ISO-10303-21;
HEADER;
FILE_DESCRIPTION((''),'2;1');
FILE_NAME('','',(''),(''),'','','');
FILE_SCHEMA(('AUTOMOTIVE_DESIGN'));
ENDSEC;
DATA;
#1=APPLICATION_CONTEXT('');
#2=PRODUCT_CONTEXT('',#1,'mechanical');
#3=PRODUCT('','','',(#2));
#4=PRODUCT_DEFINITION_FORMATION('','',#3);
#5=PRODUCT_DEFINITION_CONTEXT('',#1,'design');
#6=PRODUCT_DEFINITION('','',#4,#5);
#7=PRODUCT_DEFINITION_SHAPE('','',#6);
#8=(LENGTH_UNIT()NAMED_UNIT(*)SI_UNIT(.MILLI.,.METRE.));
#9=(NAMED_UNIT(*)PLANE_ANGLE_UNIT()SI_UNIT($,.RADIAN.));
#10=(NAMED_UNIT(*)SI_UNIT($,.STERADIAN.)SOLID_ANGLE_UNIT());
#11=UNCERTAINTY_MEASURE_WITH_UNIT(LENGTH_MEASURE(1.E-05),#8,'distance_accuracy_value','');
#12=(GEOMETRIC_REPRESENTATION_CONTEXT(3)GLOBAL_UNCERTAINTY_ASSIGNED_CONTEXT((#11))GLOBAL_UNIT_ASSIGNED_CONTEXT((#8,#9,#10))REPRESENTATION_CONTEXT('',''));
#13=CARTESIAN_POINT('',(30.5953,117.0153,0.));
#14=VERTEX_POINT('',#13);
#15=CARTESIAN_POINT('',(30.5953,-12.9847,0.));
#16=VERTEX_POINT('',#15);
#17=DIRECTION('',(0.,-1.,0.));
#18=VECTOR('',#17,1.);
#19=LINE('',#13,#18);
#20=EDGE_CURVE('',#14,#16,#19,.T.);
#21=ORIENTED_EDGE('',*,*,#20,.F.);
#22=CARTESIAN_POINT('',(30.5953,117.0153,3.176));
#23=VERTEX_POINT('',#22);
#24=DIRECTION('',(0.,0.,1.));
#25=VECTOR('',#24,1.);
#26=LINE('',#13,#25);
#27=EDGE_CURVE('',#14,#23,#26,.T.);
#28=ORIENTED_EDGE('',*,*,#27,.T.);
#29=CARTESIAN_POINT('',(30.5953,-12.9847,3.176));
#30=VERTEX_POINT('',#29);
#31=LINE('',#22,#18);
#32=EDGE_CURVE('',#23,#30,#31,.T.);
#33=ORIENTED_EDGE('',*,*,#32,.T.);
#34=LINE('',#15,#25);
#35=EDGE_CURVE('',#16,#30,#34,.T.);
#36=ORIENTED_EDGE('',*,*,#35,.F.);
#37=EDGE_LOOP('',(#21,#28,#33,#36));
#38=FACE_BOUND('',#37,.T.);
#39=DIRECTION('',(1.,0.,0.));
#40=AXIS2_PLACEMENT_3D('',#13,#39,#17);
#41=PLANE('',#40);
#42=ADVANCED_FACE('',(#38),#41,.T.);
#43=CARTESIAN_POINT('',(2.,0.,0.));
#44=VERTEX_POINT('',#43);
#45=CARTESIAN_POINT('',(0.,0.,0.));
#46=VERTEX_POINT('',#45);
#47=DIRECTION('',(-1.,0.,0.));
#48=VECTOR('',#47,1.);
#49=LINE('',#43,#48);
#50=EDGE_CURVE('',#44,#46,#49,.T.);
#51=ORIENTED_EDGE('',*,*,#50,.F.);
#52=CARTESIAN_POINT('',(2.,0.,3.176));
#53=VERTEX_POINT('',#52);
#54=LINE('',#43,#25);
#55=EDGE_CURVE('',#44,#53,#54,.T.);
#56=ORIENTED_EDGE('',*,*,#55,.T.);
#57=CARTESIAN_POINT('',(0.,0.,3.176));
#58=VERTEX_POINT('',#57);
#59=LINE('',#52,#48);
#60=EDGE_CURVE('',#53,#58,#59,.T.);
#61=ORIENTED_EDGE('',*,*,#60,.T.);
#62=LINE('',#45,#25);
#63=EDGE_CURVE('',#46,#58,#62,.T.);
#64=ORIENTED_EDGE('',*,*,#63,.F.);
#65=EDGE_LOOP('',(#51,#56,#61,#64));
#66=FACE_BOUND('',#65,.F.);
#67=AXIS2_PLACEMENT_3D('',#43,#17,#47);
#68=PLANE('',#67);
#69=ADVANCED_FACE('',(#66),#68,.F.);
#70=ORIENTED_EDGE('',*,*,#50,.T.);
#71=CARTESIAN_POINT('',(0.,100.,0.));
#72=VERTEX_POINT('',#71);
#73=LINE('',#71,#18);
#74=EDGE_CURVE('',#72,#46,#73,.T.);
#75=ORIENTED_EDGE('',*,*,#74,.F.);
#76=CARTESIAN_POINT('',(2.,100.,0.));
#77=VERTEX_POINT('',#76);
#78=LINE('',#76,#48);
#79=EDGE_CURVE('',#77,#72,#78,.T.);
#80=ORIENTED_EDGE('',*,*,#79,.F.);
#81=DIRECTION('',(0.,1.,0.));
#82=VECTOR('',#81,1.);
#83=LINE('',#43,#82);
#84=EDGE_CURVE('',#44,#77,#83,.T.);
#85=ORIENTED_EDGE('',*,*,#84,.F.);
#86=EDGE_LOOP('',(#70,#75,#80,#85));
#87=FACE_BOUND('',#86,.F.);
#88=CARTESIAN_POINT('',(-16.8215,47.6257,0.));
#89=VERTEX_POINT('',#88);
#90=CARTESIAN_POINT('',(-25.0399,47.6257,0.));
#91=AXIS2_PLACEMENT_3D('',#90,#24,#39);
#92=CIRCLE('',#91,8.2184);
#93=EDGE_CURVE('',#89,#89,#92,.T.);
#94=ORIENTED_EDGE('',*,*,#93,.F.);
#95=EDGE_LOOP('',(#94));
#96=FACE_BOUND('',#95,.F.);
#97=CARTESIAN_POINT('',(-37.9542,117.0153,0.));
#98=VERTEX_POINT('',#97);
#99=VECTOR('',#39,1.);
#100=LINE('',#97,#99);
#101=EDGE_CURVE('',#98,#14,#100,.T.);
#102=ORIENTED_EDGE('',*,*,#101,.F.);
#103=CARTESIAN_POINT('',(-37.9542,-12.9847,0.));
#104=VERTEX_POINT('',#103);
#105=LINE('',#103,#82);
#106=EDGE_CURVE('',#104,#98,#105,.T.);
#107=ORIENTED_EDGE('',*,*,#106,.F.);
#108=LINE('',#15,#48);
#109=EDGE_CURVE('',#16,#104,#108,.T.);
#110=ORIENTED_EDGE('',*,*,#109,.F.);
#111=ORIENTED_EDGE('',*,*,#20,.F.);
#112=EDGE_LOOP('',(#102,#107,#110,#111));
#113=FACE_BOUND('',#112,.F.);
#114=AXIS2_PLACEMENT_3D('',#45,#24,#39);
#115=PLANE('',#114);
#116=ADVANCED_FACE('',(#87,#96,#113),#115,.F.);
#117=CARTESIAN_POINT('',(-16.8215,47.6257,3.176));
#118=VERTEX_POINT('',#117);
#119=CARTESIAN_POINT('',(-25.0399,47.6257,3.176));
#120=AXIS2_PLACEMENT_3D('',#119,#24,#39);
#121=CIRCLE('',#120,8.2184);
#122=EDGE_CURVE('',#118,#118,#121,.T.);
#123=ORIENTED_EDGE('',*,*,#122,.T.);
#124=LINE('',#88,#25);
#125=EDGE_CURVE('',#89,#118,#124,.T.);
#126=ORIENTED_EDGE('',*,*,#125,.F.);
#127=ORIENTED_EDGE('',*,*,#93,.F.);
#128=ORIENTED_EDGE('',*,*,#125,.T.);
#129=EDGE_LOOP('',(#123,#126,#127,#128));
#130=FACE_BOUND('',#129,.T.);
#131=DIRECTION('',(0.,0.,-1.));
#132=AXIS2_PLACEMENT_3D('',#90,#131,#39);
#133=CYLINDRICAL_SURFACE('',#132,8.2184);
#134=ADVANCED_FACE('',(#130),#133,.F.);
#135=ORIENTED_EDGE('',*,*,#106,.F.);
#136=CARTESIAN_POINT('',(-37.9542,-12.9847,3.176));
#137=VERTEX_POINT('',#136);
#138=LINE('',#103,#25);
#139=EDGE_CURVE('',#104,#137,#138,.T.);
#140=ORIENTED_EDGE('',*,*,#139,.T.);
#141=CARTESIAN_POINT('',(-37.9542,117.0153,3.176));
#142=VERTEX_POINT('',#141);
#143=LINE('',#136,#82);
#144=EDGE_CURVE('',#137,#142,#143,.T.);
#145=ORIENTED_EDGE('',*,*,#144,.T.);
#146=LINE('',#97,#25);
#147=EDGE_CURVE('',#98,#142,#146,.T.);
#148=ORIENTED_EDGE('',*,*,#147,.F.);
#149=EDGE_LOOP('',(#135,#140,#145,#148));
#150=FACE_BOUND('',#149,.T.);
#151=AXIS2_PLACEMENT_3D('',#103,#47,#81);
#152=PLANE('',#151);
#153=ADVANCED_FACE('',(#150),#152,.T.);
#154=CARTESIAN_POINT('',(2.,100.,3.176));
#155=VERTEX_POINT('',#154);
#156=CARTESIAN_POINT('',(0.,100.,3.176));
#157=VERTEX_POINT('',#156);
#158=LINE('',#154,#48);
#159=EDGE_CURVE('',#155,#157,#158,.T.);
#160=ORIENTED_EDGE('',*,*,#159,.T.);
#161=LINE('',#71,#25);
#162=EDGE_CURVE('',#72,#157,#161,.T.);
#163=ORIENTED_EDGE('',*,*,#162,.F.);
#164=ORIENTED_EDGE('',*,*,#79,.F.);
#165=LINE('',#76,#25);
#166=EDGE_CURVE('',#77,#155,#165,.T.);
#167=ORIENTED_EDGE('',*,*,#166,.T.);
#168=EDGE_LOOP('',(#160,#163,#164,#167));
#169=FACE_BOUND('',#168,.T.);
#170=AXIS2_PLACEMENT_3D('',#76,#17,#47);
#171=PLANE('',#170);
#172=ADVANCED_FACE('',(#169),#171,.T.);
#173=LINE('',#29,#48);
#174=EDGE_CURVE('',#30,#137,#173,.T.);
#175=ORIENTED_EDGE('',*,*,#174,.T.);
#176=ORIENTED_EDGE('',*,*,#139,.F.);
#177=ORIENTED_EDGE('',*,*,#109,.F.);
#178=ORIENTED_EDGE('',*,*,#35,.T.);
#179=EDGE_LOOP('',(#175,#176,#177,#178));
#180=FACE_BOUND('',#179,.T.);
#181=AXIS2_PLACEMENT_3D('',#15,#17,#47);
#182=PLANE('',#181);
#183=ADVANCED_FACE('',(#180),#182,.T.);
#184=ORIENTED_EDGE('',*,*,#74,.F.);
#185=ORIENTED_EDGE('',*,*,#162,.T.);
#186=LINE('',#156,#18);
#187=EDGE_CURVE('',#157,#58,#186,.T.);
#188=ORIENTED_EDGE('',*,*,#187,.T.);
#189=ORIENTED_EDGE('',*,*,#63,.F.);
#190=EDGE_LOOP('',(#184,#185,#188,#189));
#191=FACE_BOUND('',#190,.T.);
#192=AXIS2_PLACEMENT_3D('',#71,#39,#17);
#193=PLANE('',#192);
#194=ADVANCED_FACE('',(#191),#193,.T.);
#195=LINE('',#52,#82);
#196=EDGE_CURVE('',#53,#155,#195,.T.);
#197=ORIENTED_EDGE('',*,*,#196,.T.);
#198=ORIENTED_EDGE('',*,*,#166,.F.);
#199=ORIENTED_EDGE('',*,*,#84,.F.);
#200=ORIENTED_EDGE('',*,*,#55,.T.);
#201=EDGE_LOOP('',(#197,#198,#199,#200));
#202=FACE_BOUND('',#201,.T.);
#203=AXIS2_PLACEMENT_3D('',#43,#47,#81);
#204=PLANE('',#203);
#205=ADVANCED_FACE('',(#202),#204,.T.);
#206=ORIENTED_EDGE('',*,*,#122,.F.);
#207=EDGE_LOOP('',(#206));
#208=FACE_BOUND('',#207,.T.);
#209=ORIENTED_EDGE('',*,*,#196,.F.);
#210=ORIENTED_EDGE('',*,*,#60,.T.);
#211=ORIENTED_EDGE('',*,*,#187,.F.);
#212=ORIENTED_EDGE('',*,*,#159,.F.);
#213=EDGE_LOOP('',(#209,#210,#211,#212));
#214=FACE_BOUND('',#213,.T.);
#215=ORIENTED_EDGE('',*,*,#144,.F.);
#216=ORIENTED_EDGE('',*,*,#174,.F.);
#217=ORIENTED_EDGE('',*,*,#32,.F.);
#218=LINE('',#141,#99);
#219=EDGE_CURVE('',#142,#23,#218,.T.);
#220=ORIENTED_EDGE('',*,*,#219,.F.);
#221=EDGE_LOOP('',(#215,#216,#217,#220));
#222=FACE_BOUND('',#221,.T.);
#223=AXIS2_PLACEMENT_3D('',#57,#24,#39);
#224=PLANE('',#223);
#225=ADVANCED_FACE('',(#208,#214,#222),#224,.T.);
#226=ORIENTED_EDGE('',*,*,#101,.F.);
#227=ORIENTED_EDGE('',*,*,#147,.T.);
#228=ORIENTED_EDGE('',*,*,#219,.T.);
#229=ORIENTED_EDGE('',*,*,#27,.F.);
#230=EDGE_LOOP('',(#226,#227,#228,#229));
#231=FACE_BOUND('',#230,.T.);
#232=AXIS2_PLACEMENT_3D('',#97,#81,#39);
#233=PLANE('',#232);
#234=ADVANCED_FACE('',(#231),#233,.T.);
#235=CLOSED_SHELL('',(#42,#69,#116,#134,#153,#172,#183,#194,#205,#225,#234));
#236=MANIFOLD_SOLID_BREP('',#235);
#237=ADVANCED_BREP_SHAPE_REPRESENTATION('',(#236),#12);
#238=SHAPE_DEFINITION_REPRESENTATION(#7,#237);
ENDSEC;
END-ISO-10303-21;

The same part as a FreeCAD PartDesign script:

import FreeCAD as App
import Part
import Sketcher
from FreeCAD import Vector
Q = App.Units.Quantity

doc = App.newDocument("Part")
params = doc.addObject("Spreadsheet::Sheet", "Params")
for row, (alias, value) in enumerate([
    ("sketch1_width", "2 mm"),
    ("sketch1_height", "130 mm"),
    ("sketch1_height2", "100 mm"),
    ("pad1_length", "3.176 mm"),
], start=1):
    params.set(f"A{row}", alias)
    params.set(f"B{row}", "=" + value)
    params.setAlias(f"B{row}", alias)

body = doc.addObject("PartDesign::Body", "Body")

# Sketch on XY plane
sketch1 = body.newObject("Sketcher::SketchObject", "Sketch")
sketch1.AttachmentSupport = (doc.getObject("XY_Plane"), [""])
sketch1.MapMode = "FlatFace"
sketch1.addGeometry([
    Part.LineSegment(Vector(-38, -13, 0), Vector(30.6, -13, 0)),  # 0
    Part.LineSegment(Vector(30.6, -13, 0), Vector(30.6, 117, 0)),  # 1
    Part.LineSegment(Vector(30.6, 117, 0), Vector(-38, 117, 0)),  # 2
    Part.LineSegment(Vector(-38, 117, 0), Vector(-38, -13, 0)),  # 3
    Part.Circle(Vector(-25, 47.6, 0), Vector(0, 0, 1), 8.2),  # 4
    Part.LineSegment(Vector(2, 100, 0), Vector(2, 0, 0)),  # 5
    Part.LineSegment(Vector(2, 0, 0), Vector(0, 0, 0)),  # 6
    Part.LineSegment(Vector(0, 0, 0), Vector(0, 100, 0)),  # 7
    Part.LineSegment(Vector(0, 100, 0), Vector(2, 100, 0)),  # 8
], False)
sketch1.addConstraint([
    Sketcher.Constraint("Coincident", 0, 2, 1, 1),
    Sketcher.Constraint("Coincident", 1, 2, 2, 1),
    Sketcher.Constraint("Coincident", 2, 2, 3, 1),
    Sketcher.Constraint("Coincident", 3, 2, 0, 1),
    Sketcher.Constraint("Coincident", 5, 2, 6, 1),
    Sketcher.Constraint("Coincident", 6, 2, 7, 1),
    Sketcher.Constraint("Coincident", 7, 2, 8, 1),
    Sketcher.Constraint("Coincident", 8, 2, 5, 1),
    Sketcher.Constraint("Horizontal", 0),
    Sketcher.Constraint("Vertical", 1),
    Sketcher.Constraint("Horizontal", 2),
    Sketcher.Constraint("Vertical", 3),
    Sketcher.Constraint("Vertical", 5),
    Sketcher.Constraint("Horizontal", 6),
    Sketcher.Constraint("Vertical", 7),
    Sketcher.Constraint("Horizontal", 8),
    Sketcher.Constraint("Coincident", 6, 2, -1, 1),
    Sketcher.Constraint("DistanceX", 6, 2, 6, 1, Q("2 mm")),
    Sketcher.Constraint("DistanceY", 1, 1, 1, 2, Q("130 mm")),
    Sketcher.Constraint("DistanceY", 5, 2, 5, 1, Q("100 mm")),
    Sketcher.Constraint("Diameter", 4, Q("16.4368 mm")),
    Sketcher.Constraint("DistanceX", 0, 1, 0, 2, Q("68.5495 mm")),
    Sketcher.Constraint("DistanceX", 4, 3, -1, 1, Q("25.04 mm")),
    Sketcher.Constraint("DistanceY", -1, 1, 4, 3, Q("47.6257 mm")),
    Sketcher.Constraint("DistanceX", -1, 1, 0, 2, Q("30.5953 mm")),
    Sketcher.Constraint("DistanceY", 0, 2, -1, 1, Q("12.9847 mm")),
])
sketch1.setExpression("Constraints[17]", "Params.sketch1_width")
sketch1.setExpression("Constraints[18]", "Params.sketch1_height")
sketch1.setExpression("Constraints[19]", "Params.sketch1_height2")
pad1 = body.newObject("PartDesign::Pad", "Pad")
pad1.Profile = sketch1
pad1.setExpression("Length", "Params.pad1_length")

doc.recompute()
